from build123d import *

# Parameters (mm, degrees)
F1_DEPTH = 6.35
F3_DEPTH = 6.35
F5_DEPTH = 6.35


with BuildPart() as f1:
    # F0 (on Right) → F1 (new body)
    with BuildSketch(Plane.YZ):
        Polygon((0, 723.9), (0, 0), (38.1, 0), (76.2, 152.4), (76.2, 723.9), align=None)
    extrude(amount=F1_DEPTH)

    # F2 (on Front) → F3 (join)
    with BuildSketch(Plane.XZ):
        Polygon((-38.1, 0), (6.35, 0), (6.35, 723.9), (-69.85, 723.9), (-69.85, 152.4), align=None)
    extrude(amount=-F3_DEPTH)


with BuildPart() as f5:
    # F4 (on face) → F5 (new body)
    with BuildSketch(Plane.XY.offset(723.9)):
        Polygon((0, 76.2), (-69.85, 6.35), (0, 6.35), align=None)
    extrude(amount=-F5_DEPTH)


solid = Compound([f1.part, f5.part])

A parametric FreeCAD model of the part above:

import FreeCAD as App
import Part
import Sketcher

V = App.Vector
Q = App.Units.Quantity

doc = App.newDocument("Part")
body = doc.addObject("PartDesign::Body", "Body")

# Sketch on YZ plane
sketch1 = doc.addObject("Sketcher::SketchObject", "Sketch")
body.addObject(sketch1)
sketch1.AttachmentSupport = (doc.YZ_Plane, [""])
sketch1.MapMode = "FlatFace"
sketch1.addGeometry(Part.LineSegment(V(0, 724, 0), V(0, 0, 0)), False)
sketch1.addGeometry(Part.LineSegment(V(0, 0, 0), V(38, 0, 0)), False)
sketch1.addGeometry(Part.LineSegment(V(38, 0, 0), V(76, 152, 0)), False)
sketch1.addGeometry(Part.LineSegment(V(76, 152, 0), V(76, 724, 0)), False)
sketch1.addGeometry(Part.LineSegment(V(76, 724, 0), V(0, 724, 0)), False)
sketch1.addConstraint(Sketcher.Constraint("Coincident", 0, 2, 1, 1))
sketch1.addConstraint(Sketcher.Constraint("Coincident", 1, 2, 2, 1))
sketch1.addConstraint(Sketcher.Constraint("Coincident", 2, 2, 3, 1))
sketch1.addConstraint(Sketcher.Constraint("Coincident", 3, 2, 4, 1))
sketch1.addConstraint(Sketcher.Constraint("Coincident", 4, 2, 0, 1))
sketch1.addConstraint(Sketcher.Constraint("Vertical", 0))
sketch1.addConstraint(Sketcher.Constraint("Horizontal", 1))
sketch1.addConstraint(Sketcher.Constraint("Vertical", 3))
sketch1.addConstraint(Sketcher.Constraint("Horizontal", 4))
sketch1.addConstraint(Sketcher.Constraint("Coincident", 0, 2, -1, 1))
sketch1.addConstraint(Sketcher.Constraint("DistanceX", 4, 2, 4, 1, Q("3 in")))
sketch1.addConstraint(Sketcher.Constraint("DistanceX", 1, 1, 1, 2, Q("1.5 in")))
sketch1.addConstraint(Sketcher.Constraint("DistanceY", 0, 2, 0, 1, Q("28.5 in")))
sketch1.addConstraint(Sketcher.Constraint("DistanceY", 3, 1, 3, 2, Q("22.5 in")))
pad1 = doc.addObject("PartDesign::Pad", "Pad")
body.addObject(pad1)
pad1.Profile = sketch1
pad1.Length = Q("0.25 in")

# Sketch on XZ plane
sketch2 = doc.addObject("Sketcher::SketchObject", "Sketch001")
body.addObject(sketch2)
sketch2.AttachmentSupport = (doc.XZ_Plane, [""])
sketch2.MapMode = "FlatFace"
sketch2.addGeometry(Part.LineSegment(V(-38, 0, 0), V(6, 0, 0)), False)
sketch2.addGeometry(Part.LineSegment(V(6, 0, 0), V(6, 724, 0)), False)
sketch2.addGeometry(Part.LineSegment(V(6, 724, 0), V(-70, 724, 0)), False)
sketch2.addGeometry(Part.LineSegment(V(-70, 724, 0), V(-70, 152, 0)), False)
sketch2.addGeometry(Part.LineSegment(V(-70, 152, 0), V(-38, 0, 0)), False)
sketch2.addConstraint(Sketcher.Constraint("Coincident", 0, 2, 1, 1))
sketch2.addConstraint(Sketcher.Constraint("Coincident", 1, 2, 2, 1))
sketch2.addConstraint(Sketcher.Constraint("Coincident", 2, 2, 3, 1))
sketch2.addConstraint(Sketcher.Constraint("Coincident", 3, 2, 4, 1))
sketch2.addConstraint(Sketcher.Constraint("Coincident", 4, 2, 0, 1))
sketch2.addConstraint(Sketcher.Constraint("Horizontal", 0))
sketch2.addConstraint(Sketcher.Constraint("Vertical", 1))
sketch2.addConstraint(Sketcher.Constraint("Horizontal", 2))
sketch2.addConstraint(Sketcher.Constraint("Vertical", 3))
sketch2.addConstraint(Sketcher.Constraint("PointOnObject", 0, 2, -1))
sketch2.addConstraint(Sketcher.Constraint("DistanceX", 2, 2, 2, 1, Q("3 in")))
sketch2.addConstraint(Sketcher.Constraint("DistanceY", 1, 1, 1, 2, Q("28.5 in")))
sketch2.addConstraint(Sketcher.Constraint("DistanceY", 3, 2, 3, 1, Q("22.5 in")))
sketch2.addConstraint(Sketcher.Constraint("DistanceX", 0, 1, 0, 2, Q("1.75 in")))
sketch2.addConstraint(Sketcher.Constraint("DistanceX", 4, 2, -1, 1, Q("1.5 in")))
pad2 = doc.addObject("PartDesign::Pad", "Pad001")
body.addObject(pad2)
pad2.Profile = sketch2
pad2.Length = Q("0.25 in")
pad2.Reversed = True
body2 = doc.addObject("PartDesign::Body", "Body001")

# Sketch on XY plane
sketch3 = doc.addObject("Sketcher::SketchObject", "Sketch002")
body2.addObject(sketch3)
sketch3.AttachmentSupport = (doc.getObject("XY_Plane001"), [""])
sketch3.MapMode = "FlatFace"
sketch3.AttachmentOffset = App.Placement(V(0, 0, 28.5 * 25.4), App.Rotation())
sketch3.addGeometry(Part.LineSegment(V(0, 76, 0), V(-70, 6, 0)), False)
sketch3.addGeometry(Part.LineSegment(V(-70, 6, 0), V(0, 6, 0)), False)
sketch3.addGeometry(Part.LineSegment(V(0, 6, 0), V(0, 76, 0)), False)
sketch3.addConstraint(Sketcher.Constraint("Coincident", 0, 2, 1, 1))
sketch3.addConstraint(Sketcher.Constraint("Coincident", 1, 2, 2, 1))
sketch3.addConstraint(Sketcher.Constraint("Coincident", 2, 2, 0, 1))
sketch3.addConstraint(Sketcher.Constraint("Horizontal", 1))
sketch3.addConstraint(Sketcher.Constraint("Vertical", 2))
sketch3.addConstraint(Sketcher.Constraint("PointOnObject", 1, 2, -2))
sketch3.addConstraint(Sketcher.Constraint("Equal", 1, 2))
sketch3.addConstraint(Sketcher.Constraint("DistanceY", -1, 1, 2, 2, Q("3 in")))
sketch3.addConstraint(Sketcher.Constraint("DistanceX", 1, 1, 1, 2, Q("2.75 in")))
pad3 = doc.addObject("PartDesign::Pad", "Pad002")
body2.addObject(pad3)
pad3.Profile = sketch3
pad3.Length = Q("0.25 in")
pad3.Reversed = True

doc.recompute()
